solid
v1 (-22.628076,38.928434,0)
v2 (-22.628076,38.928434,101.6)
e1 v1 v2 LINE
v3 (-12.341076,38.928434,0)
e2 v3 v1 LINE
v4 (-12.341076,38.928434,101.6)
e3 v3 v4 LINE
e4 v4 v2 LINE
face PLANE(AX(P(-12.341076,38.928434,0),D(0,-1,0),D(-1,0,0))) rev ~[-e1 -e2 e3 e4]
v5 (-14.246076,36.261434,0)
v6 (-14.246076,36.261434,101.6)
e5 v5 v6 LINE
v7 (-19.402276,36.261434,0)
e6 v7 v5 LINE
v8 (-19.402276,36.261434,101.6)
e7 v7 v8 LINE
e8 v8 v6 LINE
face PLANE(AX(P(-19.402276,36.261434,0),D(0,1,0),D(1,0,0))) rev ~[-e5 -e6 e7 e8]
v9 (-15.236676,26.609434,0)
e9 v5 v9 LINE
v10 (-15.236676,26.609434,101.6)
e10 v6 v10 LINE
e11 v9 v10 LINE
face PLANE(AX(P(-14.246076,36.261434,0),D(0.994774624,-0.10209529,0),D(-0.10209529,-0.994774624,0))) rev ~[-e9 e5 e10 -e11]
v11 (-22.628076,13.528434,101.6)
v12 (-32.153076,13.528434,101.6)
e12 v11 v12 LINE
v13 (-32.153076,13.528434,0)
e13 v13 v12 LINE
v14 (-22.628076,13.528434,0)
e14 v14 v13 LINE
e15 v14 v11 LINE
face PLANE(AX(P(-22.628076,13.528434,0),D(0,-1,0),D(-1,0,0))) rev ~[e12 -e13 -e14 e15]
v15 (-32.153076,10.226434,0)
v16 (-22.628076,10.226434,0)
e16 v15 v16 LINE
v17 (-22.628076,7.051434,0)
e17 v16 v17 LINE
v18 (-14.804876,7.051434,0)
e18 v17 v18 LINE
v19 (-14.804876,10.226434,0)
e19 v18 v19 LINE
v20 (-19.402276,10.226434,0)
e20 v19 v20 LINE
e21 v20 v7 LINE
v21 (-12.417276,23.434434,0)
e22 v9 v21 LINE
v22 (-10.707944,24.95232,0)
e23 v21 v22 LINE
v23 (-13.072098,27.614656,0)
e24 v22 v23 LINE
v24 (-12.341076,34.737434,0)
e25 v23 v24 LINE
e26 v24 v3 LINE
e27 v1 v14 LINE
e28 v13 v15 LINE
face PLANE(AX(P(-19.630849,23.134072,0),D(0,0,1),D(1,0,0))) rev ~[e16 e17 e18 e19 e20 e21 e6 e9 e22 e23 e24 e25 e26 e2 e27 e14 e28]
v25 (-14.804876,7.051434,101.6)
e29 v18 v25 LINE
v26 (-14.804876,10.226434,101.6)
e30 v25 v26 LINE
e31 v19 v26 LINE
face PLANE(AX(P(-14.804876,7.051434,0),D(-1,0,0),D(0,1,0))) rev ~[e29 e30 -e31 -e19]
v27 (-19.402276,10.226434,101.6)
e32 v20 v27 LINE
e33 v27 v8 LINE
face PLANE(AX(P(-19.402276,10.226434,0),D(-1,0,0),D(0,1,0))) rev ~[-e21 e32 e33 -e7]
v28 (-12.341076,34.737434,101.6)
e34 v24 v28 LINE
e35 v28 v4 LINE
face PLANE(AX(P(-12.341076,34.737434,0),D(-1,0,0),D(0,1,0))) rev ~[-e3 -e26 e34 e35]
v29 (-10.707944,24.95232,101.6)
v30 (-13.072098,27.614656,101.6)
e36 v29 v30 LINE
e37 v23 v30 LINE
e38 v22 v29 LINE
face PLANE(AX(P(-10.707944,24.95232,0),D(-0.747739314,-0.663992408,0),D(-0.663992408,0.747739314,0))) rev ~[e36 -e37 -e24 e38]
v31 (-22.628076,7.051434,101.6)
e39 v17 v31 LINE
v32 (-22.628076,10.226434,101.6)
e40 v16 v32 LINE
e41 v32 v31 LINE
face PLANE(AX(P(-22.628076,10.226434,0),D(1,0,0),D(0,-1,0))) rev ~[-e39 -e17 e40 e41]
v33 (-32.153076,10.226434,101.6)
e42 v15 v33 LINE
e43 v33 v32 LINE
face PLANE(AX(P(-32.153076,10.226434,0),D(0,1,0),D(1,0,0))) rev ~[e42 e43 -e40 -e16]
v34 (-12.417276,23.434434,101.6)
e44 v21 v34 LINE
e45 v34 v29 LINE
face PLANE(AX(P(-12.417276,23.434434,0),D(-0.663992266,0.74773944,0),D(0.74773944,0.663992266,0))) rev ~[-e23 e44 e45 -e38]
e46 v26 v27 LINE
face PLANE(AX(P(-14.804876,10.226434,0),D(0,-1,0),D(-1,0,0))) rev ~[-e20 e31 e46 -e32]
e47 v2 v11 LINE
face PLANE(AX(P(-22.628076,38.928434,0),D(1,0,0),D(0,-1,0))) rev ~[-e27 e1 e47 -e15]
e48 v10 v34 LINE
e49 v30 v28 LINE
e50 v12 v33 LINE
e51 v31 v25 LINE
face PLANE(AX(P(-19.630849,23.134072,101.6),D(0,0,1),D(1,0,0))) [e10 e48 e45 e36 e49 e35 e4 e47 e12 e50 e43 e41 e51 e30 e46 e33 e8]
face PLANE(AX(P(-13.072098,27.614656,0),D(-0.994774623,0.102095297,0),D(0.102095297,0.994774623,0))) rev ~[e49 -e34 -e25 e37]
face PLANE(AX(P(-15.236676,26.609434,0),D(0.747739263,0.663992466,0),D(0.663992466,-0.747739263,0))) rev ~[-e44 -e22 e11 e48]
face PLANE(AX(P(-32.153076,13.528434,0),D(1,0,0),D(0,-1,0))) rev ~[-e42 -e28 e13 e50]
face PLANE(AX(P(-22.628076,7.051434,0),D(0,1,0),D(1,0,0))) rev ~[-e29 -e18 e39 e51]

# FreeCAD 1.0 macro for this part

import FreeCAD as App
import Part
import Sketcher

V = App.Vector
Q = App.Units.Quantity

doc = App.newDocument("Part")
body = doc.addObject("PartDesign::Body", "Body")

# Sketch on XY plane
sketch1 = body.newObject("Sketcher::SketchObject", "Sketch")
sketch1.AttachmentSupport = (doc.getObject("XY_Plane"), [""])
sketch1.MapMode = "FlatFace"
sketch1.addGeometry([
    Part.LineSegment(V(-19.4, 10.2, 0), V(-19.4, 36.3, 0)),  # 0
    Part.LineSegment(V(-19.4, 36.3, 0), V(-14.2, 36.3, 0)),  # 1
    Part.LineSegment(V(-14.2, 36.3, 0), V(-15.2, 26.6, 0)),  # 2
    Part.LineSegment(V(-15.2, 26.6, 0), V(-12.4, 23.4, 0)),  # 3
    Part.LineSegment(V(-12.4, 23.4, 0), V(-10.7, 25, 0)),  # 4
    Part.LineSegment(V(-10.7, 25, 0), V(-13.1, 27.6, 0)),  # 5
    Part.LineSegment(V(-13.1, 27.6, 0), V(-12.3, 34.7, 0)),  # 6
    Part.LineSegment(V(-12.3, 34.7, 0), V(-12.3, 38.9, 0)),  # 7
    Part.LineSegment(V(-12.3, 38.9, 0), V(-22.6, 38.9, 0)),  # 8
    Part.LineSegment(V(-22.6, 38.9, 0), V(-22.6, 13.5, 0)),  # 9
    Part.LineSegment(V(-22.6, 13.5, 0), V(-32.2, 13.5, 0)),  # 10
    Part.LineSegment(V(-32.2, 13.5, 0), V(-32.2, 10.2, 0)),  # 11
    Part.LineSegment(V(-32.2, 10.2, 0), V(-22.6, 10.2, 0)),  # 12
    Part.LineSegment(V(-22.6, 10.2, 0), V(-22.6, 7.1, 0)),  # 13
    Part.LineSegment(V(-22.6, 7.1, 0), V(-14.8, 7.1, 0)),  # 14
    Part.LineSegment(V(-14.8, 7.1, 0), V(-14.8, 10.2, 0)),  # 15
    Part.LineSegment(V(-14.8, 10.2, 0), V(-19.4, 10.2, 0)),  # 16
], False)
sketch1.addConstraint([
    Sketcher.Constraint("Coincident", 0, 2, 1, 1),
    Sketcher.Constraint("Coincident", 1, 2, 2, 1),
    Sketcher.Constraint("Coincident", 2, 2, 3, 1),
    Sketcher.Constraint("Coincident", 3, 2, 4, 1),
    Sketcher.Constraint("Coincident", 4, 2, 5, 1),
    Sketcher.Constraint("Coincident", 5, 2, 6, 1),
    Sketcher.Constraint("Coincident", 6, 2, 7, 1),
    Sketcher.Constraint("Coincident", 7, 2, 8, 1),
    Sketcher.Constraint("Coincident", 8, 2, 9, 1),
    Sketcher.Constraint("Coincident", 9, 2, 10, 1),
    Sketcher.Constraint("Coincident", 10, 2, 11, 1),
    Sketcher.Constraint("Coincident", 11, 2, 12, 1),
    Sketcher.Constraint("Coincident", 12, 2, 13, 1),
    Sketcher.Constraint("Coincident", 13, 2, 14, 1),
    Sketcher.Constraint("Coincident", 14, 2, 15, 1),
    Sketcher.Constraint("Coincident", 15, 2, 16, 1),
    Sketcher.Constraint("Coincident", 16, 2, 0, 1),
    Sketcher.Constraint("Vertical", 0),
    Sketcher.Constraint("Horizontal", 1),
    Sketcher.Constraint("Vertical", 7),
    Sketcher.Constraint("Horizontal", 8),
    Sketcher.Constraint("Vertical", 9),
    Sketcher.Constraint("Horizontal", 10),
    Sketcher.Constraint("Vertical", 11),
    Sketcher.Constraint("Horizontal", 12),
    Sketcher.Constraint("Vertical", 13),
    Sketcher.Constraint("Horizontal", 14),
    Sketcher.Constraint("Vertical", 15),
    Sketcher.Constraint("Horizontal", 16),
    Sketcher.Constraint("Perpendicular", 3, 4),
    Sketcher.Constraint("Perpendicular", 4, 5),
    Sketcher.Constraint("Parallel", 2, 6),
    Sketcher.Constraint("Horizontal", 12, 2, 15, 2),
    Sketcher.Constraint("Vertical", 9, 2, 12, 2),
    Sketcher.Constraint("DistanceY", 9, 2, 9, 1, Q("1 in")),
    Sketcher.Constraint("DistanceY", 11, 2, 11, 1, Q("0.13 in")),
    Sketcher.Constraint("Distance", 4, Q("0.09 in")),
    Sketcher.Constraint("DistanceX", 1, 1, 1, 2, Q("0.203 in")),
    Sketcher.Constraint("DistanceX", 8, 2, 8, 1, Q("0.405 in")),
    Sketcher.Constraint("DistanceX", 10, 2, 10, 1, Q("0.375 in")),
    Sketcher.Constraint("DistanceX", 14, 1, 14, 2, Q("0.308 in")),
    Sketcher.Constraint("DistanceX", 16, 2, 16, 1, Q("0.181 in")),
    Sketcher.Constraint("DistanceY", 0, 1, 0, 2, Q("1.025 in")),
    Sketcher.Constraint("DistanceY", 7, 1, 7, 2, Q("0.165 in")),
    Sketcher.Constraint("DistanceY", 13, 2, 13, 1, Q("0.125 in")),
    Sketcher.Constraint("DistanceY", 2, 2, 1, 2, Q("0.38 in")),
    Sketcher.Constraint("DistanceY", 9, 2, 3, 2, Q("0.39 in")),
    Sketcher.Constraint("DistanceX", 2, 2, 1, 2, Q("0.039 in")),
    Sketcher.Constraint("DistanceX", 2, 2, 3, 2, Q("0.111 in")),
    Sketcher.Constraint("DistanceY", -1, 1, 4, 2, 24.95232),
    Sketcher.Constraint("DistanceX", 0, 2, -1, 1, 19.402276),
])
pad1 = body.newObject("PartDesign::Pad", "Pad")
pad1.Profile = sketch1
pad1.Length = Q("4 in")

doc.recompute()
